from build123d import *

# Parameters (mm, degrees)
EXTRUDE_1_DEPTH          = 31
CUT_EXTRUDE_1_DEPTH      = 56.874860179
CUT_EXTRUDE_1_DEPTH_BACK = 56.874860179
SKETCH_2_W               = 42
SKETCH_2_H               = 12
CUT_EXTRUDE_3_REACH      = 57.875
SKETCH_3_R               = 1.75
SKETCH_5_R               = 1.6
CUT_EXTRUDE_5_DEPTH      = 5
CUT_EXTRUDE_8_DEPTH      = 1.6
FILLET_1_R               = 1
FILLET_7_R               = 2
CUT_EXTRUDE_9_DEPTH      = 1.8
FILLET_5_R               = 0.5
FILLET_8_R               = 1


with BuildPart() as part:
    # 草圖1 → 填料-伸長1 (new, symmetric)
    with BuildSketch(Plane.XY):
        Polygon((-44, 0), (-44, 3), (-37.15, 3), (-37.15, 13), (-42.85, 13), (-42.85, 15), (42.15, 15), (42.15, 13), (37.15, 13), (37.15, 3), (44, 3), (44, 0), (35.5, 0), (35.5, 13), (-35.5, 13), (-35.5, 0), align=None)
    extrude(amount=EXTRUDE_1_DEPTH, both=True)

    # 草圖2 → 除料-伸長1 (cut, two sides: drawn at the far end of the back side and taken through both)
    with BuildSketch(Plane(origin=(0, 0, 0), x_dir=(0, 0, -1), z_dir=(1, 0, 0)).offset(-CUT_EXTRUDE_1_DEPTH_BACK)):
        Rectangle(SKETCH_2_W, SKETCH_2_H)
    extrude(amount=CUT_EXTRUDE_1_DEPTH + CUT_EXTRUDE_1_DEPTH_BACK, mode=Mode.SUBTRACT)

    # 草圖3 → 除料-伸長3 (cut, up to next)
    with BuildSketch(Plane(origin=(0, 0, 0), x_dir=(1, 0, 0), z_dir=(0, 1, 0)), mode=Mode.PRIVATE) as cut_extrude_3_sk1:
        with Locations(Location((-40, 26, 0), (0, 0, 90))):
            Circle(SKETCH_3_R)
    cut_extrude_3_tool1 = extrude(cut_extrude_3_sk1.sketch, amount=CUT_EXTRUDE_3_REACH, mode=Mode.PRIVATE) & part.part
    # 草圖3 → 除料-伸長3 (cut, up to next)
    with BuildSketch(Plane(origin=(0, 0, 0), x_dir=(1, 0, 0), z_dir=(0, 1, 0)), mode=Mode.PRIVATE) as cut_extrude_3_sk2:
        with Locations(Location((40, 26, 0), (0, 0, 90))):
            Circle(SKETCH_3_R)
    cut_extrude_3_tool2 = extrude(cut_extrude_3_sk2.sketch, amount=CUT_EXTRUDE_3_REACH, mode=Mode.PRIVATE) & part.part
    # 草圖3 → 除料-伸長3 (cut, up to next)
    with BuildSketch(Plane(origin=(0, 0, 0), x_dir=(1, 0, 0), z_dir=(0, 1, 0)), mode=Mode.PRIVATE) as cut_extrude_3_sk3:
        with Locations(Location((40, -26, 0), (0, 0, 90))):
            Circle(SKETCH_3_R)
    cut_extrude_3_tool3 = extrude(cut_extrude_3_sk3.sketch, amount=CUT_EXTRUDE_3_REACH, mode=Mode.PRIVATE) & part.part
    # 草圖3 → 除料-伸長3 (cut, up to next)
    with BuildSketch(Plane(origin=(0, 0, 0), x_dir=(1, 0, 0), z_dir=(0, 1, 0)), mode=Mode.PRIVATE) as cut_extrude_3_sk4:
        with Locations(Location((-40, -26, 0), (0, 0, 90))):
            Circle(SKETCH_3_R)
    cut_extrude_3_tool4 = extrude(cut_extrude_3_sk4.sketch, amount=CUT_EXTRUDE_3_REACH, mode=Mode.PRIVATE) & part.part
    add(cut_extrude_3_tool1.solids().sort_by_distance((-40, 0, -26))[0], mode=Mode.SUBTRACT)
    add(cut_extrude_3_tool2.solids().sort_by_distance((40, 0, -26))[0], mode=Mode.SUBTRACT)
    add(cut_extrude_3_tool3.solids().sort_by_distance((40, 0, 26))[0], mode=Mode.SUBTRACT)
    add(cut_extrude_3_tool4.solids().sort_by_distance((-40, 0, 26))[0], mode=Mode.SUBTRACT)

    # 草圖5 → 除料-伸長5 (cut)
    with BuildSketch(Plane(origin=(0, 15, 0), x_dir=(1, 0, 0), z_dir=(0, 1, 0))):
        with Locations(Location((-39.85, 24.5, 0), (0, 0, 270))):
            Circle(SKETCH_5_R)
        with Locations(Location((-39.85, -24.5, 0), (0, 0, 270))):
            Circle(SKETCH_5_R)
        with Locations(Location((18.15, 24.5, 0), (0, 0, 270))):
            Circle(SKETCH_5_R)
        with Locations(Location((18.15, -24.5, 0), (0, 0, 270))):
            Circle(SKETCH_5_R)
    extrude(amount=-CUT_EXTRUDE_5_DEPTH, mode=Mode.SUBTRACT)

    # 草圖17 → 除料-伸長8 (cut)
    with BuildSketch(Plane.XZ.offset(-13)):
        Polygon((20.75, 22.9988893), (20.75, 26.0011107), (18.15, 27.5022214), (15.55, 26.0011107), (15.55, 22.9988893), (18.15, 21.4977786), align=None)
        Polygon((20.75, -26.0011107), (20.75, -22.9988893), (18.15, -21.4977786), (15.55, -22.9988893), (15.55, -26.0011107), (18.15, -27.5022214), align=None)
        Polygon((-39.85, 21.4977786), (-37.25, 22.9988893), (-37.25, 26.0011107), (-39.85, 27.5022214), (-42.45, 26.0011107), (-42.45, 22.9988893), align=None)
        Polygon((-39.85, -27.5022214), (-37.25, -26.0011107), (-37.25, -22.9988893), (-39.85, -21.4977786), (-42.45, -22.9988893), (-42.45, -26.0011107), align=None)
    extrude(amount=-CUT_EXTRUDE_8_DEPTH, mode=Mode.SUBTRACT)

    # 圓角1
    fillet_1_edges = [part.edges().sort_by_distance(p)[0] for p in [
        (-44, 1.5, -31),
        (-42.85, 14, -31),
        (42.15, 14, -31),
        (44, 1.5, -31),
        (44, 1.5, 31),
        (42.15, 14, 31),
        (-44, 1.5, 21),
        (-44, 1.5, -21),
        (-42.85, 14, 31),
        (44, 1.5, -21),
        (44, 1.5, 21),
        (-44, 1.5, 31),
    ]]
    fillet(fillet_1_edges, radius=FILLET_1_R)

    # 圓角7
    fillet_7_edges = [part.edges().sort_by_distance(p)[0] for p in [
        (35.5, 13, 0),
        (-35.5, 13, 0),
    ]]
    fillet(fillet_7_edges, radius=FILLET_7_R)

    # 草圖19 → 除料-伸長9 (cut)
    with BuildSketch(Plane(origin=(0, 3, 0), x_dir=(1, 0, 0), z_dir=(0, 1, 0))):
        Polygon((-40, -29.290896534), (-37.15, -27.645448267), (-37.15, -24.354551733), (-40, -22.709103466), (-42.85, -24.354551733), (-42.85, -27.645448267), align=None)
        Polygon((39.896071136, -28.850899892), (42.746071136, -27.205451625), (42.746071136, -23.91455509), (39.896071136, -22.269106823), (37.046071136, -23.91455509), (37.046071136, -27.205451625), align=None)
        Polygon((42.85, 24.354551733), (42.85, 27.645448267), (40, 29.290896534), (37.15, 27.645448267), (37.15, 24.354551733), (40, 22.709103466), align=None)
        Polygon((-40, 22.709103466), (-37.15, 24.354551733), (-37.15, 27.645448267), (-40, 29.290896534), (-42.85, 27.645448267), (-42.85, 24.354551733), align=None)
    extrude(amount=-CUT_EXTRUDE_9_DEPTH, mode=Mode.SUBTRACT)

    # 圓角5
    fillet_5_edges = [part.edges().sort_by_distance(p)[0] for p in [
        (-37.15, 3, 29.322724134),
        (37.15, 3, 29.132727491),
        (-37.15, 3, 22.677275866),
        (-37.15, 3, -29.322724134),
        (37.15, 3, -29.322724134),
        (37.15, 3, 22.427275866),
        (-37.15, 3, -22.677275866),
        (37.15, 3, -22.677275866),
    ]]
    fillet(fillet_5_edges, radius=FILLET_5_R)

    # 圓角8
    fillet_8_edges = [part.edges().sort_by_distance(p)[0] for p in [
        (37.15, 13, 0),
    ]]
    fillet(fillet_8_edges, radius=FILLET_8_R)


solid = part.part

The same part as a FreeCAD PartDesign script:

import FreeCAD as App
import Part
import Sketcher

V = App.Vector
Q = App.Units.Quantity


def edges_at(feature, points):
    """Names of the edges that pass closest to the given points."""
    edges = feature.Shape.Edges
    near = lambda p: min(range(len(edges)), key=lambda i: edges[i].distToShape(Part.Vertex(*p))[0])
    return sorted({f"Edge{near(p) + 1}" for p in points})

doc = App.newDocument("Part")
body = doc.addObject("PartDesign::Body", "Body")

# Sketch on XY plane
sketch1 = body.newObject("Sketcher::SketchObject", "Sketch")
sketch1.AttachmentSupport = (doc.getObject("XY_Plane"), [""])
sketch1.MapMode = "FlatFace"
sketch1.addGeometry([
    Part.LineSegment(V(-44, 3, 0), V(-44, 0, 0)),  # 0
    Part.LineSegment(V(-44, 0, 0), V(-35.5, 0, 0)),  # 1
    Part.LineSegment(V(-35.5, 0, 0), V(-35.5, 13, 0)),  # 2
    Part.LineSegment(V(-35.5, 13, 0), V(35.5, 13, 0)),  # 3
    Part.LineSegment(V(35.5, 13, 0), V(35.5, 0, 0)),  # 4
    Part.LineSegment(V(35.5, 0, 0), V(44, 0, 0)),  # 5
    Part.LineSegment(V(44, 0, 0), V(44, 3, 0)),  # 6
    Part.LineSegment(V(44, 3, 0), V(37.1, 3, 0)),  # 7
    Part.LineSegment(V(37.1, 3, 0), V(37.1, 13, 0)),  # 8
    Part.LineSegment(V(37.1, 13, 0), V(42.1, 13, 0)),  # 9
    Part.LineSegment(V(42.1, 13, 0), V(42.1, 15, 0)),  # 10
    Part.LineSegment(V(42.1, 15, 0), V(-42.9, 15, 0)),  # 11
    Part.LineSegment(V(-42.9, 15, 0), V(-42.9, 13, 0)),  # 12
    Part.LineSegment(V(-42.9, 13, 0), V(-37.1, 13, 0)),  # 13
    Part.LineSegment(V(-37.1, 13, 0), V(-37.1, 3, 0)),  # 14
    Part.LineSegment(V(-37.1, 3, 0), V(-44, 3, 0)),  # 15
], False)
sketch1.addConstraint([
    Sketcher.Constraint("Coincident", 0, 2, 1, 1),
    Sketcher.Constraint("Coincident", 1, 2, 2, 1),
    Sketcher.Constraint("Coincident", 2, 2, 3, 1),
    Sketcher.Constraint("Coincident", 3, 2, 4, 1),
    Sketcher.Constraint("Coincident", 4, 2, 5, 1),
    Sketcher.Constraint("Coincident", 5, 2, 6, 1),
    Sketcher.Constraint("Coincident", 6, 2, 7, 1),
    Sketcher.Constraint("Coincident", 7, 2, 8, 1),
    Sketcher.Constraint("Coincident", 8, 2, 9, 1),
    Sketcher.Constraint("Coincident", 9, 2, 10, 1),
    Sketcher.Constraint("Coincident", 10, 2, 11, 1),
    Sketcher.Constraint("Coincident", 11, 2, 12, 1),
    Sketcher.Constraint("Coincident", 12, 2, 13, 1),
    Sketcher.Constraint("Coincident", 13, 2, 14, 1),
    Sketcher.Constraint("Coincident", 14, 2, 15, 1),
    Sketcher.Constraint("Coincident", 15, 2, 0, 1),
    Sketcher.Constraint("Vertical", 0),
    Sketcher.Constraint("Horizontal", 1),
    Sketcher.Constraint("Vertical", 2),
    Sketcher.Constraint("Horizontal", 3),
    Sketcher.Constraint("Vertical", 4),
    Sketcher.Constraint("Horizontal", 5),
    Sketcher.Constraint("Vertical", 6),
    Sketcher.Constraint("Horizontal", 7),
    Sketcher.Constraint("Vertical", 8),
    Sketcher.Constraint("Horizontal", 9),
    Sketcher.Constraint("Vertical", 10),
    Sketcher.Constraint("Horizontal", 11),
    Sketcher.Constraint("Vertical", 12),
    Sketcher.Constraint("Horizontal", 13),
    Sketcher.Constraint("Vertical", 14),
    Sketcher.Constraint("Horizontal", 15),
    Sketcher.Constraint("Symmetric", 1, 2, 4, 2, -1, 1),
    Sketcher.Constraint("Symmetric", 0, 2, 5, 2, -2),
    Sketcher.Constraint("Symmetric", 8, 2, 13, 2, -2),
    Sketcher.Constraint("Horizontal", 3, 2, 8, 2),
    Sketcher.Constraint("Horizontal", 7, 2, 14, 2),
    Sketcher.Constraint("DistanceX", 3, 1, 3, 2, Q("71 mm")),
    Sketcher.Constraint("DistanceX", 9, 1, 9, 2, Q("5 mm")),
    Sketcher.Constraint("DistanceX", 11, 2, 11, 1, Q("85 mm")),
    Sketcher.Constraint("DistanceY", 0, 2, 0, 1, Q("3 mm")),
    Sketcher.Constraint("DistanceY", 2, 1, 2, 2, Q("13 mm")),
    Sketcher.Constraint("DistanceY", 10, 1, 10, 2, Q("2 mm")),
    Sketcher.Constraint("DistanceX", 1, 1, 1, 2, Q("8.5 mm")),
    Sketcher.Constraint("DistanceX", 13, 1, 13, 2, Q("5.7 mm")),
])
pad1 = body.newObject("PartDesign::Pad", "Pad")
pad1.Profile = sketch1
pad1.Length = 62
pad1.Midplane = True

# Sketch on YZ plane
sketch2 = body.newObject("Sketcher::SketchObject", "Sketch001")
sketch2.AttachmentSupport = (doc.getObject("YZ_Plane"), [""])
sketch2.MapMode = "FlatFace"
sketch2.addGeometry([
    Part.LineSegment(V(6, 21, 0), V(-6, 21, 0)),
    Part.LineSegment(V(-6, 21, 0), V(-6, -21, 0)),
    Part.LineSegment(V(-6, -21, 0), V(6, -21, 0)),
    Part.LineSegment(V(6, -21, 0), V(6, 21, 0)),
], False)
sketch2.addConstraint([
    Sketcher.Constraint("Coincident", 0, 2, 1, 1),
    Sketcher.Constraint("Coincident", 1, 2, 2, 1),
    Sketcher.Constraint("Coincident", 2, 2, 3, 1),
    Sketcher.Constraint("Coincident", 3, 2, 0, 1),
    Sketcher.Constraint("Horizontal", 0),
    Sketcher.Constraint("Vertical", 1),
    Sketcher.Constraint("Horizontal", 2),
    Sketcher.Constraint("Vertical", 3),
    Sketcher.Constraint("Symmetric", 0, 2, 2, 2, -1, 1),
    Sketcher.Constraint("DistanceX", 0, 2, 0, 1, Q("12 mm")),
    Sketcher.Constraint("DistanceY", 1, 2, 1, 1, Q("42 mm")),
])
pocket1 = body.newObject("PartDesign::Pocket", "Pocket")
pocket1.Profile = sketch2
pocket1.Type = "ThroughAll"
pocket1.Midplane = True

# Sketch on XZ plane
sketch3 = body.newObject("Sketcher::SketchObject", "Sketch002")
sketch3.AttachmentSupport = (doc.getObject("XZ_Plane"), [""])
sketch3.MapMode = "FlatFace"
sketch3.addGeometry(Part.Circle(V(-40, -26, 0), V(0, 0, 1), 1.8), False)
sketch3.addConstraint([
    Sketcher.Constraint("Diameter", 0, Q("3.5 mm")),
    Sketcher.Constraint("DistanceX", 0, 3, -1, 1, Q("40 mm")),
    Sketcher.Constraint("DistanceY", 0, 3, -1, 1, Q("26 mm")),
])
pocket2 = body.newObject("PartDesign::Pocket", "Pocket001")
pocket2.Profile = sketch3
pocket2.Type = "UpToFirst"

# Sketch on XZ plane
sketch4 = body.newObject("Sketcher::SketchObject", "Sketch003")
sketch4.AttachmentSupport = (doc.getObject("XZ_Plane"), [""])
sketch4.MapMode = "FlatFace"
sketch4.addGeometry(Part.Circle(V(40, -26, 0), V(0, 0, 1), 1.8), False)
sketch4.addConstraint([
    Sketcher.Constraint("Diameter", 0, Q("3.5 mm")),
    Sketcher.Constraint("DistanceX", -1, 1, 0, 3, Q("40 mm")),
    Sketcher.Constraint("DistanceY", 0, 3, -1, 1, Q("26 mm")),
])
pocket3 = body.newObject("PartDesign::Pocket", "Pocket002")
pocket3.Profile = sketch4
pocket3.Type = "UpToFirst"

# Sketch on XZ plane
sketch5 = body.newObject("Sketcher::SketchObject", "Sketch004")
sketch5.AttachmentSupport = (doc.getObject("XZ_Plane"), [""])
sketch5.MapMode = "FlatFace"
sketch5.addGeometry(Part.Circle(V(40, 26, 0), V(0, 0, 1), 1.8), False)
sketch5.addConstraint([
    Sketcher.Constraint("Diameter", 0, Q("3.5 mm")),
    Sketcher.Constraint("DistanceX", -1, 1, 0, 3, Q("40 mm")),
    Sketcher.Constraint("DistanceY", -1, 1, 0, 3, Q("26 mm")),
])
pocket4 = body.newObject("PartDesign::Pocket", "Pocket003")
pocket4.Profile = sketch5
pocket4.Type = "UpToFirst"

# Sketch on XZ plane
sketch6 = body.newObject("Sketcher::SketchObject", "Sketch005")
sketch6.AttachmentSupport = (doc.getObject("XZ_Plane"), [""])
sketch6.MapMode = "FlatFace"
sketch6.addGeometry(Part.Circle(V(-40, 26, 0), V(0, 0, 1), 1.8), False)
sketch6.addConstraint([
    Sketcher.Constraint("Diameter", 0, Q("3.5 mm")),
    Sketcher.Constraint("DistanceX", 0, 3, -1, 1, Q("40 mm")),
    Sketcher.Constraint("DistanceY", -1, 1, 0, 3, Q("26 mm")),
])
pocket5 = body.newObject("PartDesign::Pocket", "Pocket004")
pocket5.Profile = sketch6
pocket5.Type = "UpToFirst"

# Sketch on XZ plane
sketch7 = body.newObject("Sketcher::SketchObject", "Sketch006")
sketch7.AttachmentSupport = (doc.getObject("XZ_Plane"), [""])
sketch7.MapMode = "FlatFace"
sketch7.AttachmentOffset = App.Placement(V(0, 0, -15), App.Rotation())
sketch7.addGeometry([
    Part.Circle(V(-39.9, -24.5, 0), V(0, 0, 1), 1.6),
    Part.Circle(V(-39.9, 24.5, 0), V(0, 0, 1), 1.6),
    Part.Circle(V(18.1, -24.5, 0), V(0, 0, 1), 1.6),
    Part.Circle(V(18.1, 24.5, 0), V(0, 0, 1), 1.6),
], False)
sketch7.addConstraint([
    Sketcher.Constraint("Equal", 0, 1),
    Sketcher.Constraint("Equal", 1, 2),
    Sketcher.Constraint("Equal", 2, 3),
    Sketcher.Constraint("Symmetric", 0, 3, 1, 3, -1),
    Sketcher.Constraint("Symmetric", 2, 3, 3, 3, -1),
    Sketcher.Constraint("Horizontal", 0, 3, 2, 3),
    Sketcher.Constraint("Diameter", 0, Q("3.2 mm")),
    Sketcher.Constraint("DistanceY", 0, 3, 1, 3, Q("49 mm")),
    Sketcher.Constraint("DistanceX", 0, 3, 2, 3, Q("58 mm")),
    Sketcher.Constraint("DistanceX", 0, 3, -1, 1, Q("39.85 mm")),
])
pocket6 = body.newObject("PartDesign::Pocket", "Pocket005")
pocket6.Profile = sketch7
pocket6.Length = 5
pocket6.Reversed = True

# Sketch on XZ plane
sketch8 = body.newObject("Sketcher::SketchObject", "Sketch007")
sketch8.AttachmentSupport = (doc.getObject("XZ_Plane"), [""])
sketch8.MapMode = "FlatFace"
sketch8.AttachmentOffset = App.Placement(V(0, 0, -13), App.Rotation())
sketch8.addGeometry([
    Part.LineSegment(V(20.8, 23, 0), V(20.8, 26, 0)),  # 0
    Part.LineSegment(V(20.8, 26, 0), V(18.1, 27.5, 0)),  # 1
    Part.LineSegment(V(18.1, 27.5, 0), V(15.6, 26, 0)),  # 2
    Part.LineSegment(V(15.6, 26, 0), V(15.6, 23, 0)),  # 3
    Part.LineSegment(V(15.6, 23, 0), V(18.1, 21.5, 0)),  # 4
    Part.LineSegment(V(18.1, 21.5, 0), V(20.8, 23, 0)),  # 5
    Part.LineSegment(V(20.8, -26, 0), V(20.8, -23, 0)),  # 6
    Part.LineSegment(V(20.8, -23, 0), V(18.1, -21.5, 0)),  # 7
    Part.LineSegment(V(18.1, -21.5, 0), V(15.6, -23, 0)),  # 8
    Part.LineSegment(V(15.6, -23, 0), V(15.6, -26, 0)),  # 9
    Part.LineSegment(V(15.6, -26, 0), V(18.1, -27.5, 0)),  # 10
    Part.LineSegment(V(18.1, -27.5, 0), V(20.8, -26, 0)),  # 11
    Part.LineSegment(V(-39.9, 21.5, 0), V(-37.2, 23, 0)),  # 12
    Part.LineSegment(V(-37.2, 23, 0), V(-37.2, 26, 0)),  # 13
    Part.LineSegment(V(-37.2, 26, 0), V(-39.9, 27.5, 0)),  # 14
    Part.LineSegment(V(-39.9, 27.5, 0), V(-42.5, 26, 0)),  # 15
    Part.LineSegment(V(-42.5, 26, 0), V(-42.5, 23, 0)),  # 16
    Part.LineSegment(V(-42.5, 23, 0), V(-39.9, 21.5, 0)),  # 17
    Part.LineSegment(V(-39.9, -27.5, 0), V(-37.2, -26, 0)),  # 18
    Part.LineSegment(V(-37.2, -26, 0), V(-37.2, -23, 0)),  # 19
    Part.LineSegment(V(-37.2, -23, 0), V(-39.9, -21.5, 0)),  # 20
    Part.LineSegment(V(-39.9, -21.5, 0), V(-42.5, -23, 0)),  # 21
    Part.LineSegment(V(-42.5, -23, 0), V(-42.5, -26, 0)),  # 22
    Part.LineSegment(V(-42.5, -26, 0), V(-39.9, -27.5, 0)),  # 23
], False)
sketch8.addConstraint([
    Sketcher.Constraint("Coincident", 0, 2, 1, 1),
    Sketcher.Constraint("Coincident", 1, 2, 2, 1),
    Sketcher.Constraint("Coincident", 2, 2, 3, 1),
    Sketcher.Constraint("Coincident", 3, 2, 4, 1),
    Sketcher.Constraint("Coincident", 4, 2, 5, 1),
    Sketcher.Constraint("Coincident", 5, 2, 0, 1),
    Sketcher.Constraint("Coincident", 6, 2, 7, 1),
    Sketcher.Constraint("Coincident", 7, 2, 8, 1),
    Sketcher.Constraint("Coincident", 8, 2, 9, 1),
    Sketcher.Constraint("Coincident", 9, 2, 10, 1),
    Sketcher.Constraint("Coincident", 10, 2, 11, 1),
    Sketcher.Constraint("Coincident", 11, 2, 6, 1),
    Sketcher.Constraint("Coincident", 12, 2, 13, 1),
    Sketcher.Constraint("Coincident", 13, 2, 14, 1),
    Sketcher.Constraint("Coincident", 14, 2, 15, 1),
    Sketcher.Constraint("Coincident", 15, 2, 16, 1),
    Sketcher.Constraint("Coincident", 16, 2, 17, 1),
    Sketcher.Constraint("Coincident", 17, 2, 12, 1),
    Sketcher.Constraint("Coincident", 18, 2, 19, 1),
    Sketcher.Constraint("Coincident", 19, 2, 20, 1),
    Sketcher.Constraint("Coincident", 20, 2, 21, 1),
    Sketcher.Constraint("Coincident", 21, 2, 22, 1),
    Sketcher.Constraint("Coincident", 22, 2, 23, 1),
    Sketcher.Constraint("Coincident", 23, 2, 18, 1),
    Sketcher.Constraint("Vertical", 0),
    Sketcher.Constraint("Vertical", 3),
    Sketcher.Constraint("Vertical", 6),
    Sketcher.Constraint("Vertical", 9),
    Sketcher.Constraint("Vertical", 13),
    Sketcher.Constraint("Vertical", 16),
    Sketcher.Constraint("Vertical", 19),
    Sketcher.Constraint("Vertical", 22),
    Sketcher.Constraint("Symmetric", 5, 2, 6, 2, -1),
    Sketcher.Constraint("Symmetric", 4, 2, 7, 2, -1),
    Sketcher.Constraint("Symmetric", 3, 2, 8, 2, -1),
    Sketcher.Constraint("Symmetric", 1, 2, 10, 2, -1),
    Sketcher.Constraint("Symmetric", 13, 2, 18, 2, -1),
    Sketcher.Constraint("Symmetric", 17, 2, 20, 2, -1),
    Sketcher.Constraint("Symmetric", 16, 2, 21, 2, -1),
    Sketcher.Constraint("Symmetric", 14, 2, 23, 2, -1),
    Sketcher.Constraint("Parallel", 1, 4),
    Sketcher.Constraint("Parallel", 2, 5),
    Sketcher.Constraint("Parallel", 4, 7),
    Sketcher.Constraint("Parallel", 7, 10),
    Sketcher.Constraint("Parallel", 8, 11),
    Sketcher.Constraint("Parallel", 11, 12),
    Sketcher.Constraint("Parallel", 10, 14),
    Sketcher.Constraint("Parallel", 12, 15),
    Sketcher.Constraint("Parallel", 14, 17),
    Sketcher.Constraint("Parallel", 17, 20),
    Sketcher.Constraint("Parallel", 20, 23),
    Sketcher.Constraint("Horizontal", 0, 2, 2, 2),
    Sketcher.Constraint("Horizontal", 3, 2, 5, 2),
    Sketcher.Constraint("Horizontal", 5, 2, 12, 2),
    Sketcher.Constraint("Horizontal", 2, 2, 13, 2),
    Sketcher.Constraint("Horizontal", 1, 2, 14, 2),
    Sketcher.Constraint("Horizontal", 13, 2, 15, 2),
    Sketcher.Constraint("Horizontal", 12, 2, 16, 2),
    Sketcher.Constraint("Angle", 1, Q("150 deg")),
    Sketcher.Constraint("DistanceY", 6, 2, 0, 2, Q("49 mm")),
    Sketcher.Constraint("DistanceX", 12, 2, 5, 2, Q("58 mm")),
    Sketcher.Constraint("DistanceX", 1, 2, 0, 2, Q("2.6 mm")),
    Sketcher.Constraint("DistanceX", -1, 1, 0, 2, Q("20.75 mm")),
    Sketcher.Constraint("DistanceY", 0, 1, 0, 2, Q("3.002221 mm")),
])
pocket7 = body.newObject("PartDesign::Pocket", "Pocket006")
pocket7.Profile = sketch8
pocket7.Length = 1.6
doc.recompute()

fillet = body.newObject("PartDesign::Fillet", "Fillet")
fillet.Base = (pocket7, edges_at(pocket7, [
    (-44, 1.5, -31),
    (-42.85, 14, -31),
    (42.15, 14, -31),
    (44, 1.5, -31),
    (44, 1.5, 31),
    (42.15, 14, 31),
    (-44, 1.5, 21),
    (-44, 1.5, -21),
    (-42.85, 14, 31),
    (44, 1.5, -21),
    (44, 1.5, 21),
    (-44, 1.5, 31),
]))
fillet.Radius = 1
doc.recompute()

fillet2 = body.newObject("PartDesign::Fillet", "Fillet001")
fillet2.Base = (fillet, edges_at(fillet, [(35.5, 13, 0), (-35.5, 13, 0)]))
fillet2.Radius = 2

# Sketch on XZ plane
sketch9 = body.newObject("Sketcher::SketchObject", "Sketch008")
sketch9.AttachmentSupport = (doc.getObject("XZ_Plane"), [""])
sketch9.MapMode = "FlatFace"
sketch9.AttachmentOffset = App.Placement(V(0, 0, -3), App.Rotation())
sketch9.addGeometry([
    Part.LineSegment(V(-40, 29.3, 0), V(-37.1, 27.6, 0)),  # 0
    Part.LineSegment(V(-37.1, 27.6, 0), V(-37.1, 24.4, 0)),  # 1
    Part.LineSegment(V(-37.1, 24.4, 0), V(-40, 22.7, 0)),  # 2
    Part.LineSegment(V(-40, 22.7, 0), V(-42.9, 24.4, 0)),  # 3
    Part.LineSegment(V(-42.9, 24.4, 0), V(-42.9, 27.6, 0)),  # 4
    Part.LineSegment(V(-42.9, 27.6, 0), V(-40, 29.3, 0)),  # 5
    Part.LineSegment(V(39.9, 28.9, 0), V(42.7, 27.2, 0)),  # 6
    Part.LineSegment(V(42.7, 27.2, 0), V(42.7, 23.9, 0)),  # 7
    Part.LineSegment(V(42.7, 23.9, 0), V(39.9, 22.3, 0)),  # 8
    Part.LineSegment(V(39.9, 22.3, 0), V(37, 23.9, 0)),  # 9
    Part.LineSegment(V(37, 23.9, 0), V(37, 27.2, 0)),  # 10
    Part.LineSegment(V(37, 27.2, 0), V(39.9, 28.9, 0)),  # 11
    Part.LineSegment(V(42.9, -24.4, 0), V(42.9, -27.6, 0)),  # 12
    Part.LineSegment(V(42.9, -27.6, 0), V(40, -29.3, 0)),  # 13
    Part.LineSegment(V(40, -29.3, 0), V(37.1, -27.6, 0)),  # 14
    Part.LineSegment(V(37.1, -27.6, 0), V(37.1, -24.4, 0)),  # 15
    Part.LineSegment(V(37.1, -24.4, 0), V(40, -22.7, 0)),  # 16
    Part.LineSegment(V(40, -22.7, 0), V(42.9, -24.4, 0)),  # 17
    Part.LineSegment(V(-40, -22.7, 0), V(-37.1, -24.4, 0)),  # 18
    Part.LineSegment(V(-37.1, -24.4, 0), V(-37.1, -27.6, 0)),  # 19
    Part.LineSegment(V(-37.1, -27.6, 0), V(-40, -29.3, 0)),  # 20
    Part.LineSegment(V(-40, -29.3, 0), V(-42.9, -27.6, 0)),  # 21
    Part.LineSegment(V(-42.9, -27.6, 0), V(-42.9, -24.4, 0)),  # 22
    Part.LineSegment(V(-42.9, -24.4, 0), V(-40, -22.7, 0)),  # 23
], False)
sketch9.addConstraint([
    Sketcher.Constraint("Coincident", 0, 2, 1, 1),
    Sketcher.Constraint("Coincident", 1, 2, 2, 1),
    Sketcher.Constraint("Coincident", 2, 2, 3, 1),
    Sketcher.Constraint("Coincident", 3, 2, 4, 1),
    Sketcher.Constraint("Coincident", 4, 2, 5, 1),
    Sketcher.Constraint("Coincident", 5, 2, 0, 1),
    Sketcher.Constraint("Coincident", 6, 2, 7, 1),
    Sketcher.Constraint("Coincident", 7, 2, 8, 1),
    Sketcher.Constraint("Coincident", 8, 2, 9, 1),
    Sketcher.Constraint("Coincident", 9, 2, 10, 1),
    Sketcher.Constraint("Coincident", 10, 2, 11, 1),
    Sketcher.Constraint("Coincident", 11, 2, 6, 1),
    Sketcher.Constraint("Coincident", 12, 2, 13, 1),
    Sketcher.Constraint("Coincident", 13, 2, 14, 1),
    Sketcher.Constraint("Coincident", 14, 2, 15, 1),
    Sketcher.Constraint("Coincident", 15, 2, 16, 1),
    Sketcher.Constraint("Coincident", 16, 2, 17, 1),
    Sketcher.Constraint("Coincident", 17, 2, 12, 1),
    Sketcher.Constraint("Coincident", 18, 2, 19, 1),
    Sketcher.Constraint("Coincident", 19, 2, 20, 1),
    Sketcher.Constraint("Coincident", 20, 2, 21, 1),
    Sketcher.Constraint("Coincident", 21, 2, 22, 1),
    Sketcher.Constraint("Coincident", 22, 2, 23, 1),
    Sketcher.Constraint("Coincident", 23, 2, 18, 1),
    Sketcher.Constraint("Vertical", 1),
    Sketcher.Constraint("Vertical", 4),
    Sketcher.Constraint("Vertical", 7),
    Sketcher.Constraint("Vertical", 10),
    Sketcher.Constraint("Vertical", 12),
    Sketcher.Constraint("Vertical", 15),
    Sketcher.Constraint("Vertical", 19),
    Sketcher.Constraint("Vertical", 22),
    Sketcher.Constraint("Symmetric", 4, 2, 12, 2, -1, 1),
    Sketcher.Constraint("Symmetric", 5, 2, 13, 2, -1, 1),
    Sketcher.Constraint("Symmetric", 0, 2, 14, 2, -1, 1),
    Sketcher.Constraint("Symmetric", 2, 2, 16, 2, -1, 1),
    Sketcher.Constraint("Symmetric", 15, 2, 18, 2, -2),
    Sketcher.Constraint("Symmetric", 13, 2, 20, 2, -2),
    Sketcher.Constraint("Symmetric", 12, 2, 21, 2, -2),
    Sketcher.Constraint("Symmetric", 16, 2, 23, 2, -2),
    Sketcher.Constraint("Parallel", 0, 3),
    Sketcher.Constraint("Parallel", 2, 5),
    Sketcher.Constraint("Parallel", 3, 6),
    Sketcher.Constraint("Parallel", 5, 8),
    Sketcher.Constraint("Parallel", 6, 9),
    Sketcher.Constraint("Parallel", 8, 11),
    Sketcher.Constraint("Parallel", 13, 16),
    Sketcher.Constraint("Parallel", 14, 17),
    Sketcher.Constraint("Parallel", 17, 18),
    Sketcher.Constraint("Parallel", 16, 20),
    Sketcher.Constraint("Parallel", 20, 23),
    Sketcher.Constraint("Horizontal", 1, 2, 3, 2),
    Sketcher.Constraint("Horizontal", 0, 2, 4, 2),
    Sketcher.Constraint("Horizontal", 7, 2, 9, 2),
    Sketcher.Constraint("Horizontal", 6, 2, 10, 2),
    Sketcher.Constraint("Equal", 4, 7),
    Sketcher.Constraint("Equal", 5, 6),
    Sketcher.Constraint("Angle", 0, Q("-30 deg")),
    Sketcher.Constraint("DistanceX", 2, 2, -1, 1, Q("40 mm")),
    Sketcher.Constraint("DistanceY", 18, 2, 0, 2, Q("52 mm")),
    Sketcher.Constraint("DistanceX", 3, 2, 1, 2, Q("5.7 mm")),
    Sketcher.Constraint("DistanceY", -1, 1, 11, 2, Q("28.8509 mm")),
    Sketcher.Constraint("DistanceY", 1, 2, 6, 2, Q("2.8509 mm")),
    Sketcher.Constraint("DistanceX", -1, 1, 6, 2, Q("42.746071 mm")),
])
pocket8 = body.newObject("PartDesign::Pocket", "Pocket007")
pocket8.Profile = sketch9
pocket8.Length = 1.8
pocket8.Reversed = True
doc.recompute()

fillet3 = body.newObject("PartDesign::Fillet", "Fillet002")
fillet3.Base = (pocket8, edges_at(pocket8, [
    (-37.15, 3, 29.323),
    (37.15, 3, 29.133),
    (-37.15, 3, 22.677),
    (-37.15, 3, -29.323),
    (37.15, 3, -29.323),
    (37.15, 3, 22.427),
    (-37.15, 3, -22.677),
    (37.15, 3, -22.677),
]))
fillet3.Radius = 0.5
doc.recompute()

fillet4 = body.newObject("PartDesign::Fillet", "Fillet003")
fillet4.Base = (fillet3, edges_at(fillet3, [(37.15, 13, 0)]))
fillet4.Radius = 1

doc.recompute()
